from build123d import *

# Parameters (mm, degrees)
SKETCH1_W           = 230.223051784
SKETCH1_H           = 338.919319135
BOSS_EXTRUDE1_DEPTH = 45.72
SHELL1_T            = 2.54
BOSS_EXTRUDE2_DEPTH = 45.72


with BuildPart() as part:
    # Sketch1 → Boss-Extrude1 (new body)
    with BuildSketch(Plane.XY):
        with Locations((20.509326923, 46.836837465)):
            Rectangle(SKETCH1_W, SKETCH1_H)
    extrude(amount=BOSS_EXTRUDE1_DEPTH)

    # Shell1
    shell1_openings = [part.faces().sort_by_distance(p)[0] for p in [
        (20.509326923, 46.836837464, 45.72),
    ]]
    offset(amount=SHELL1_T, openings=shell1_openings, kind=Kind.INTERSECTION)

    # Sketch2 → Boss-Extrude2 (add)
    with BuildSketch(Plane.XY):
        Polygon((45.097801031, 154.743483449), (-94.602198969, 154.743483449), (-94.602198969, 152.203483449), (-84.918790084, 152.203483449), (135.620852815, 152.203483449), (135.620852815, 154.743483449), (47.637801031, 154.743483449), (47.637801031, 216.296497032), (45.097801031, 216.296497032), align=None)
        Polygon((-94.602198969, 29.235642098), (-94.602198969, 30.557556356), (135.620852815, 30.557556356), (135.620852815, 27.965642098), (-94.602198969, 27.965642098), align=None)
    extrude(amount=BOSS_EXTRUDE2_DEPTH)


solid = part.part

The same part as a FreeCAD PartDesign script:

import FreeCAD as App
import Part
import Sketcher
from FreeCAD import Vector
Q = App.Units.Quantity


def faces_at(feature, points):
    """Names of the faces that lie closest to the given points."""
    faces = feature.Shape.Faces
    near = lambda p: min(range(len(faces)), key=lambda i: faces[i].distToShape(Part.Vertex(*p))[0])
    return sorted({f"Face{near(p) + 1}" for p in points})

doc = App.newDocument("Part")
params = doc.addObject("Spreadsheet::Sheet", "Params")
for row, (alias, value) in enumerate([
    ("pad1_length", "1.8 in"),
    ("thickness_wall", "0.1 in"),
    ("sketch2_width", "5.5 in"),
    ("sketch2_width2", "0.1 in"),
    ("pad2_length", "1.8 in"),
], start=1):
    params.set(f"A{row}", alias)
    params.set(f"B{row}", "=" + value)
    params.setAlias(f"B{row}", alias)

body = doc.addObject("PartDesign::Body", "Body")

# Sketch on XY plane
sketch1 = body.newObject("Sketcher::SketchObject", "Sketch")
sketch1.AttachmentSupport = (doc.getObject("XY_Plane"), [""])
sketch1.MapMode = "FlatFace"
sketch1.addGeometry([
    Part.LineSegment(Vector(-95, 216, 0), Vector(-95, -123, 0)),
    Part.LineSegment(Vector(-95, -123, 0), Vector(136, -123, 0)),
    Part.LineSegment(Vector(136, -123, 0), Vector(136, 216, 0)),
    Part.LineSegment(Vector(136, 216, 0), Vector(-95, 216, 0)),
], False)
sketch1.addConstraint([
    Sketcher.Constraint("Coincident", 0, 2, 1, 1),
    Sketcher.Constraint("Coincident", 1, 2, 2, 1),
    Sketcher.Constraint("Coincident", 2, 2, 3, 1),
    Sketcher.Constraint("Coincident", 3, 2, 0, 1),
    Sketcher.Constraint("Vertical", 0),
    Sketcher.Constraint("Horizontal", 1),
    Sketcher.Constraint("Vertical", 2),
    Sketcher.Constraint("Horizontal", 3),
    Sketcher.Constraint("DistanceX", 1, 1, 1, 2, Q("230.223052 mm")),
    Sketcher.Constraint("DistanceY", 0, 2, 0, 1, Q("338.919319 mm")),
    Sketcher.Constraint("DistanceX", 0, 2, -1, 1, Q("94.602199 mm")),
    Sketcher.Constraint("DistanceY", 0, 2, -1, 1, Q("122.622822 mm")),
])
pad1 = body.newObject("PartDesign::Pad", "Pad")
pad1.Profile = sketch1
pad1.setExpression("Length", "Params.pad1_length")
doc.recompute()

thickness = body.newObject("PartDesign::Thickness", "Thickness")
thickness.Base = (pad1, faces_at(pad1, [(20.509, 46.837, 45.72)]))
thickness.setExpression("Value", "Params.thickness_wall")
thickness.Reversed = False
thickness.Join = "Intersection"

# Sketch on XY plane
sketch2 = body.newObject("Sketcher::SketchObject", "Sketch001")
sketch2.AttachmentSupport = (doc.getObject("XY_Plane"), [""])
sketch2.MapMode = "FlatFace"
sketch2.addGeometry([
    Part.LineSegment(Vector(45.1, 154.7, 0), Vector(-94.6, 154.7, 0)),  # 0
    Part.LineSegment(Vector(-94.6, 154.7, 0), Vector(-94.6, 152.2, 0)),  # 1
    Part.LineSegment(Vector(-94.6, 152.2, 0), Vector(135.6, 152.2, 0)),  # 2
    Part.LineSegment(Vector(135.6, 152.2, 0), Vector(135.6, 154.7, 0)),  # 3
    Part.LineSegment(Vector(135.6, 154.7, 0), Vector(47.6, 154.7, 0)),  # 4
    Part.LineSegment(Vector(47.6, 154.7, 0), Vector(47.6, 216.3, 0)),  # 5
    Part.LineSegment(Vector(47.6, 216.3, 0), Vector(45.1, 216.3, 0)),  # 6
    Part.LineSegment(Vector(45.1, 216.3, 0), Vector(45.1, 154.7, 0)),  # 7
    Part.LineSegment(Vector(-94.6, 30.6, 0), Vector(-94.6, 28, 0)),  # 8
    Part.LineSegment(Vector(-94.6, 28, 0), Vector(135.6, 28, 0)),  # 9
    Part.LineSegment(Vector(135.6, 28, 0), Vector(135.6, 30.6, 0)),  # 10
    Part.LineSegment(Vector(135.6, 30.6, 0), Vector(-94.6, 30.6, 0)),  # 11
], False)
sketch2.addConstraint([
    Sketcher.Constraint("Coincident", 0, 2, 1, 1),
    Sketcher.Constraint("Coincident", 1, 2, 2, 1),
    Sketcher.Constraint("Coincident", 2, 2, 3, 1),
    Sketcher.Constraint("Coincident", 3, 2, 4, 1),
    Sketcher.Constraint("Coincident", 4, 2, 5, 1),
    Sketcher.Constraint("Coincident", 5, 2, 6, 1),
    Sketcher.Constraint("Coincident", 6, 2, 7, 1),
    Sketcher.Constraint("Coincident", 7, 2, 0, 1),
    Sketcher.Constraint("Coincident", 8, 2, 9, 1),
    Sketcher.Constraint("Coincident", 9, 2, 10, 1),
    Sketcher.Constraint("Coincident", 10, 2, 11, 1),
    Sketcher.Constraint("Coincident", 11, 2, 8, 1),
    Sketcher.Constraint("Horizontal", 0),
    Sketcher.Constraint("Vertical", 1),
    Sketcher.Constraint("Horizontal", 2),
    Sketcher.Constraint("Vertical", 3),
    Sketcher.Constraint("Horizontal", 4),
    Sketcher.Constraint("Vertical", 5),
    Sketcher.Constraint("Horizontal", 6),
    Sketcher.Constraint("Vertical", 7),
    Sketcher.Constraint("Vertical", 8),
    Sketcher.Constraint("Horizontal", 9),
    Sketcher.Constraint("Vertical", 10),
    Sketcher.Constraint("Horizontal", 11),
    Sketcher.Constraint("Horizontal", 0, 2, 3, 2),
    Sketcher.Constraint("Vertical", 1, 2, 8, 2),
    Sketcher.Constraint("Vertical", 3, 2, 9, 2),
    Sketcher.Constraint("Equal", 6, 1),
    Sketcher.Constraint("DistanceX", 0, 2, 0, 1, Q("5.5 in")),
    Sketcher.Constraint("DistanceX", 6, 2, 6, 1, Q("0.1 in")),
    Sketcher.Constraint("DistanceX", 2, 1, 2, 2, Q("230.223052 mm")),
    Sketcher.Constraint("DistanceX", 0, 2, -1, 1, Q("94.602199 mm")),
    Sketcher.Constraint("DistanceY", 5, 1, 5, 2, Q("61.553014 mm")),
    Sketcher.Constraint("DistanceY", 8, 2, 8, 1, Q("2.591914 mm")),
    Sketcher.Constraint("DistanceY", 8, 2, 1, 2, Q("124.237841 mm")),
    Sketcher.Constraint("DistanceY", -1, 1, 0, 2, Q("154.743483 mm")),
])
sketch2.setExpression("Constraints[28]", "Params.sketch2_width")
sketch2.setExpression("Constraints[29]", "Params.sketch2_width2")
pad2 = body.newObject("PartDesign::Pad", "Pad001")
pad2.Profile = sketch2
pad2.setExpression("Length", "Params.pad2_length")

doc.recompute()
